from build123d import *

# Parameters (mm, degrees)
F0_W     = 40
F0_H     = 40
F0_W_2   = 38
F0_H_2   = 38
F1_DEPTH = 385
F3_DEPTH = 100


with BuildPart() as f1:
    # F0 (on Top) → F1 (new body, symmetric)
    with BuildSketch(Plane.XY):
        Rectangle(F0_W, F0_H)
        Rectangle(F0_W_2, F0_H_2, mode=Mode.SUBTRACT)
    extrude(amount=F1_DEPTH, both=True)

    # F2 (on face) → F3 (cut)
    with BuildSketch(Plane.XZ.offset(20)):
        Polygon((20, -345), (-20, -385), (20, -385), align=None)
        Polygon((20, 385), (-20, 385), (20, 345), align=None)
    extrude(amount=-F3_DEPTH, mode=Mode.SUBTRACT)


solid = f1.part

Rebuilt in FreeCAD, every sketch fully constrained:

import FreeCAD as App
import Part
import Sketcher

V = App.Vector
Q = App.Units.Quantity

doc = App.newDocument("Part")
body = doc.addObject("PartDesign::Body", "Body")

# Sketch on XY plane
sketch1 = doc.addObject("Sketcher::SketchObject", "Sketch")
body.addObject(sketch1)
sketch1.AttachmentSupport = (doc.XY_Plane, [""])
sketch1.MapMode = "FlatFace"
sketch1.addGeometry(Part.LineSegment(V(-20, 20, 0), V(-20, -20, 0)), False)
sketch1.addGeometry(Part.LineSegment(V(-20, -20, 0), V(20, -20, 0)), False)
sketch1.addGeometry(Part.LineSegment(V(20, -20, 0), V(20, 20, 0)), False)
sketch1.addGeometry(Part.LineSegment(V(20, 20, 0), V(-20, 20, 0)), False)
sketch1.addGeometry(Part.LineSegment(V(19, -19, 0), V(-19, -19, 0)), False)
sketch1.addGeometry(Part.LineSegment(V(-19, -19, 0), V(-19, 19, 0)), False)
sketch1.addGeometry(Part.LineSegment(V(-19, 19, 0), V(19, 19, 0)), False)
sketch1.addGeometry(Part.LineSegment(V(19, 19, 0), V(19, -19, 0)), False)
sketch1.addConstraint(Sketcher.Constraint("Coincident", 0, 2, 1, 1))
sketch1.addConstraint(Sketcher.Constraint("Coincident", 1, 2, 2, 1))
sketch1.addConstraint(Sketcher.Constraint("Coincident", 2, 2, 3, 1))
sketch1.addConstraint(Sketcher.Constraint("Coincident", 3, 2, 0, 1))
sketch1.addConstraint(Sketcher.Constraint("Coincident", 4, 2, 5, 1))
sketch1.addConstraint(Sketcher.Constraint("Coincident", 5, 2, 6, 1))
sketch1.addConstraint(Sketcher.Constraint("Coincident", 6, 2, 7, 1))
sketch1.addConstraint(Sketcher.Constraint("Coincident", 7, 2, 4, 1))
sketch1.addConstraint(Sketcher.Constraint("Vertical", 0))
sketch1.addConstraint(Sketcher.Constraint("Horizontal", 1))
sketch1.addConstraint(Sketcher.Constraint("Vertical", 2))
sketch1.addConstraint(Sketcher.Constraint("Horizontal", 3))
sketch1.addConstraint(Sketcher.Constraint("Horizontal", 4))
sketch1.addConstraint(Sketcher.Constraint("Vertical", 5))
sketch1.addConstraint(Sketcher.Constraint("Horizontal", 6))
sketch1.addConstraint(Sketcher.Constraint("Vertical", 7))
sketch1.addConstraint(Sketcher.Constraint("Symmetric", 0, 2, 2, 2, -1, 1))
sketch1.addConstraint(Sketcher.Constraint("Symmetric", 4, 2, 6, 2, -1, 1))
sketch1.addConstraint(Sketcher.Constraint("Equal", 3, 0))
sketch1.addConstraint(Sketcher.Constraint("Equal", 6, 5))
sketch1.addConstraint(Sketcher.Constraint("DistanceX", 1, 1, 1, 2, Q("40 mm")))
sketch1.addConstraint(Sketcher.Constraint("DistanceX", 4, 2, 4, 1, Q("38 mm")))
pad1 = doc.addObject("PartDesign::Pad", "Pad")
body.addObject(pad1)
pad1.Profile = sketch1
pad1.Length = 770
pad1.Midplane = True

# Sketch on XZ plane
sketch2 = doc.addObject("Sketcher::SketchObject", "Sketch001")
body.addObject(sketch2)
sketch2.AttachmentSupport = (doc.XZ_Plane, [""])
sketch2.MapMode = "FlatFace"
sketch2.AttachmentOffset = App.Placement(V(0, 0, 20), App.Rotation())
sketch2.addGeometry(Part.LineSegment(V(20, -345, 0), V(-20, -385, 0)), False)
sketch2.addGeometry(Part.LineSegment(V(-20, -385, 0), V(20, -385, 0)), False)
sketch2.addGeometry(Part.LineSegment(V(20, -385, 0), V(20, -345, 0)), False)
sketch2.addGeometry(Part.LineSegment(V(20, 385, 0), V(-20, 385, 0)), False)
sketch2.addGeometry(Part.LineSegment(V(-20, 385, 0), V(20, 345, 0)), False)
sketch2.addGeometry(Part.LineSegment(V(20, 345, 0), V(20, 385, 0)), False)
sketch2.addConstraint(Sketcher.Constraint("Coincident", 0, 2, 1, 1))
sketch2.addConstraint(Sketcher.Constraint("Coincident", 1, 2, 2, 1))
sketch2.addConstraint(Sketcher.Constraint("Coincident", 2, 2, 0, 1))
sketch2.addConstraint(Sketcher.Constraint("Coincident", 3, 2, 4, 1))
sketch2.addConstraint(Sketcher.Constraint("Coincident", 4, 2, 5, 1))
sketch2.addConstraint(Sketcher.Constraint("Coincident", 5, 2, 3, 1))
sketch2.addConstraint(Sketcher.Constraint("Horizontal", 1))
sketch2.addConstraint(Sketcher.Constraint("Vertical", 2))
sketch2.addConstraint(Sketcher.Constraint("Horizontal", 3))
sketch2.addConstraint(Sketcher.Constraint("Vertical", 5))
sketch2.addConstraint(Sketcher.Constraint("Symmetric", 1, 2, 3, 2, -1, 1))
sketch2.addConstraint(Sketcher.Constraint("Symmetric", 2, 2, 4, 2, -1))
sketch2.addConstraint(Sketcher.Constraint("Perpendicular", 0, 4))
sketch2.addConstraint(Sketcher.Constraint("Vertical", 0, 2, 3, 2))
sketch2.addConstraint(Sketcher.Constraint("DistanceX", 1, 1, 1, 2, Q("40 mm")))
sketch2.addConstraint(Sketcher.Constraint("DistanceY", 0, 2, -1, 1, Q("385 mm")))
pocket1 = doc.addObject("PartDesign::Pocket", "Pocket")
body.addObject(pocket1)
pocket1.Profile = sketch2
pocket1.Length = 100

doc.recompute()
